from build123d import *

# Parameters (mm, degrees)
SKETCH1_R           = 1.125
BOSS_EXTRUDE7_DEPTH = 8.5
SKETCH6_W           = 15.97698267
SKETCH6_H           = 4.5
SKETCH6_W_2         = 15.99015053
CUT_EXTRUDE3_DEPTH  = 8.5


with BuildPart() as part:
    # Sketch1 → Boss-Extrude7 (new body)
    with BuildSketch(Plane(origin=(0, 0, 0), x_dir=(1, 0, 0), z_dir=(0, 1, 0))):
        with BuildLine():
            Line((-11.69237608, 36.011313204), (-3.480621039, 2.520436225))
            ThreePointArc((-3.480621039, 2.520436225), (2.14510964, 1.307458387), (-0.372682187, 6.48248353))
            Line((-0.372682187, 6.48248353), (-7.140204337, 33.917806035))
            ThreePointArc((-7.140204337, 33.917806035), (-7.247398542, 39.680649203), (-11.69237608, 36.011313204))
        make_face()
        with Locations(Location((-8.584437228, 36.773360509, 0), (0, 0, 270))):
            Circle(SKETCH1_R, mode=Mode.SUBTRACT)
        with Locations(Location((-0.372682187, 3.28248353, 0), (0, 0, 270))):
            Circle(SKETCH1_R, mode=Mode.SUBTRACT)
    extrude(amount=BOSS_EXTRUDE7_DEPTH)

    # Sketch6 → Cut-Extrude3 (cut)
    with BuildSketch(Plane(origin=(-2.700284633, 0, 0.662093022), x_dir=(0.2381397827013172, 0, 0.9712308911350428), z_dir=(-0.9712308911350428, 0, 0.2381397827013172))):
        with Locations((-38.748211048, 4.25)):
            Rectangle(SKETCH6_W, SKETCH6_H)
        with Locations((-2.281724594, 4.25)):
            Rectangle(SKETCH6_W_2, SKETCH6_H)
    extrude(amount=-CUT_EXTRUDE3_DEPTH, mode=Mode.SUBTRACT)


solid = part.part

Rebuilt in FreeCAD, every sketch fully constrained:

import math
import FreeCAD as App
import Part
import Sketcher


def add_polygon(sketch, points):
    """Adds a closed chain of lines whose ends are joined by coincident constraints."""
    first, n = sketch.GeometryCount, len(points)
    for a, b in zip(points, points[1:] + points[:1]):
        sketch.addGeometry(Part.LineSegment(App.Vector(*a, 0), App.Vector(*b, 0)), False)
    for i in range(n):
        sketch.addConstraint(Sketcher.Constraint("Coincident", first + i, 2, first + (i + 1) % n, 1))

doc = App.newDocument("Part")
params = doc.addObject("Spreadsheet::Sheet", "Params")
for row, (alias, value) in enumerate([
    ("sketch1_radius", "3.2 mm"),
    ("sketch1_diameter", "2.25 mm"),
    ("pad1_length", "8.5 mm"),
    ("sketch2_height", "4.5 mm"),
    ("pocket1_length", "8.5 mm"),
], start=1):
    params.set(f"A{row}", alias)
    params.set(f"B{row}", "=" + value)
    params.setAlias(f"B{row}", alias)

body = doc.addObject("PartDesign::Body", "Body")

sketch1 = body.newObject("Sketcher::SketchObject", "Sketch")
sketch1.AttachmentSupport = (doc.getObject("XZ_Plane"), [""])
sketch1.MapMode = "FlatFace"
sketch1.addGeometry(Part.LineSegment(App.Vector(-11.692376, -36.011313, 0), App.Vector(-3.480621, -2.520436, 0)), False)
sketch1.addGeometry(Part.ArcOfCircle(Part.Circle(App.Vector(-0.372682, -3.282484, 0), App.Vector(0, 0, 1), 3.2), math.radians(-90), math.radians(166.223225)), False)
sketch1.addGeometry(Part.LineSegment(App.Vector(-0.372682, -6.482484, 0), App.Vector(-7.140204, -33.917806, 0)), False)
sketch1.addGeometry(Part.ArcOfCircle(Part.Circle(App.Vector(-8.584437, -36.773361, 0), App.Vector(0, 0, 1), 3.2), math.radians(166.223225), math.radians(423.171416)), False)
sketch1.addGeometry(Part.Circle(App.Vector(-0.372682, -3.282484, 0), App.Vector(0, 0, 1), 1.125), False)
sketch1.addGeometry(Part.Circle(App.Vector(-8.584437, -36.773361, 0), App.Vector(0, 0, 1), 1.125), False)
sketch1.addConstraint(Sketcher.Constraint("Tangent", 0, 2, 1, 2))
sketch1.addConstraint(Sketcher.Constraint("Coincident", 1, 1, 2, 1))
sketch1.addConstraint(Sketcher.Constraint("Coincident", 2, 2, 3, 2))
sketch1.addConstraint(Sketcher.Constraint("Tangent", 3, 1, 0, 1))
sketch1.addConstraint(Sketcher.Constraint("Coincident", 4, 3, 1, 3))
sketch1.addConstraint(Sketcher.Constraint("Coincident", 5, 3, 3, 3))
sketch1.addConstraint(Sketcher.Constraint("Equal", 1, 3))
sketch1.addConstraint(Sketcher.Constraint("Equal", 4, 5))
sketch1.addConstraint(Sketcher.Constraint("Vertical", 4, 3, 1, 1))
sketch1.addConstraint(Sketcher.Constraint("Radius", 1, 3.2))
sketch1.addConstraint(Sketcher.Constraint("Diameter", 4, 2.25))
sketch1.addConstraint(Sketcher.Constraint("Distance", 0, 34.48292))
sketch1.addConstraint(Sketcher.Constraint("DistanceY", 3, 3, -1, 1, 36.773361))
sketch1.addConstraint(Sketcher.Constraint("DistanceX", 0, 2, -1, 1, 3.480621))
sketch1.addConstraint(Sketcher.Constraint("DistanceX", 0, 2, 1, 3, 3.107939))
sketch1.addConstraint(Sketcher.Constraint("DistanceX", 3, 1, 2, 2, 4.552172))
sketch1.setExpression("Constraints[9]", "Params.sketch1_radius")
sketch1.setExpression("Constraints[10]", "Params.sketch1_diameter")
pad1 = body.newObject("PartDesign::Pad", "Pad")
pad1.Profile = sketch1
pad1.setExpression("Length", "Params.pad1_length")
pad1.Reversed = True

sketch2 = body.newObject("Sketcher::SketchObject", "Sketch001")
sketch2.Placement = App.Placement(App.Vector(-2.700285, 0, 0.662093), App.Rotation(App.Vector(0.238139783, 0, 0.971230891), App.Vector(0, 1, 0), App.Vector(-0.971230891, 0, 0.238139783), "ZXY"))
add_polygon(sketch2, [(-46.736702, 6.5), (-46.736702, 2), (-30.75972, 2), (-30.75972, 6.5)])
add_polygon(sketch2, [(-10.2768, 6.5), (-10.2768, 2), (5.713351, 2), (5.713351, 6.5)])
sketch2.addConstraint(Sketcher.Constraint("Vertical", 0))
sketch2.addConstraint(Sketcher.Constraint("Horizontal", 1))
sketch2.addConstraint(Sketcher.Constraint("Vertical", 2))
sketch2.addConstraint(Sketcher.Constraint("Horizontal", 3))
sketch2.addConstraint(Sketcher.Constraint("Vertical", 4))
sketch2.addConstraint(Sketcher.Constraint("Horizontal", 5))
sketch2.addConstraint(Sketcher.Constraint("Vertical", 6))
sketch2.addConstraint(Sketcher.Constraint("Horizontal", 7))
sketch2.addConstraint(Sketcher.Constraint("Horizontal", 1, 2, 4, 2))
sketch2.addConstraint(Sketcher.Constraint("Horizontal", 3, 2, 6, 2))
sketch2.addConstraint(Sketcher.Constraint("DistanceY", 0, 2, 0, 1, 4.5))
sketch2.addConstraint(Sketcher.Constraint("DistanceY", -1, 1, 0, 2, 2.0))
sketch2.addConstraint(Sketcher.Constraint("DistanceX", 5, 1, 5, 2, 15.990151))
sketch2.addConstraint(Sketcher.Constraint("DistanceX", 4, 2, -1, 1, 10.2768))
sketch2.addConstraint(Sketcher.Constraint("DistanceX", 1, 1, 1, 2, 15.976983))
sketch2.addConstraint(Sketcher.Constraint("DistanceX", 1, 2, -1, 1, 30.75972))
sketch2.setExpression("Constraints[18]", "Params.sketch2_height")
pocket1 = body.newObject("PartDesign::Pocket", "Pocket")
pocket1.Profile = sketch2
pocket1.setExpression("Length", "Params.pocket1_length")

doc.recompute()
